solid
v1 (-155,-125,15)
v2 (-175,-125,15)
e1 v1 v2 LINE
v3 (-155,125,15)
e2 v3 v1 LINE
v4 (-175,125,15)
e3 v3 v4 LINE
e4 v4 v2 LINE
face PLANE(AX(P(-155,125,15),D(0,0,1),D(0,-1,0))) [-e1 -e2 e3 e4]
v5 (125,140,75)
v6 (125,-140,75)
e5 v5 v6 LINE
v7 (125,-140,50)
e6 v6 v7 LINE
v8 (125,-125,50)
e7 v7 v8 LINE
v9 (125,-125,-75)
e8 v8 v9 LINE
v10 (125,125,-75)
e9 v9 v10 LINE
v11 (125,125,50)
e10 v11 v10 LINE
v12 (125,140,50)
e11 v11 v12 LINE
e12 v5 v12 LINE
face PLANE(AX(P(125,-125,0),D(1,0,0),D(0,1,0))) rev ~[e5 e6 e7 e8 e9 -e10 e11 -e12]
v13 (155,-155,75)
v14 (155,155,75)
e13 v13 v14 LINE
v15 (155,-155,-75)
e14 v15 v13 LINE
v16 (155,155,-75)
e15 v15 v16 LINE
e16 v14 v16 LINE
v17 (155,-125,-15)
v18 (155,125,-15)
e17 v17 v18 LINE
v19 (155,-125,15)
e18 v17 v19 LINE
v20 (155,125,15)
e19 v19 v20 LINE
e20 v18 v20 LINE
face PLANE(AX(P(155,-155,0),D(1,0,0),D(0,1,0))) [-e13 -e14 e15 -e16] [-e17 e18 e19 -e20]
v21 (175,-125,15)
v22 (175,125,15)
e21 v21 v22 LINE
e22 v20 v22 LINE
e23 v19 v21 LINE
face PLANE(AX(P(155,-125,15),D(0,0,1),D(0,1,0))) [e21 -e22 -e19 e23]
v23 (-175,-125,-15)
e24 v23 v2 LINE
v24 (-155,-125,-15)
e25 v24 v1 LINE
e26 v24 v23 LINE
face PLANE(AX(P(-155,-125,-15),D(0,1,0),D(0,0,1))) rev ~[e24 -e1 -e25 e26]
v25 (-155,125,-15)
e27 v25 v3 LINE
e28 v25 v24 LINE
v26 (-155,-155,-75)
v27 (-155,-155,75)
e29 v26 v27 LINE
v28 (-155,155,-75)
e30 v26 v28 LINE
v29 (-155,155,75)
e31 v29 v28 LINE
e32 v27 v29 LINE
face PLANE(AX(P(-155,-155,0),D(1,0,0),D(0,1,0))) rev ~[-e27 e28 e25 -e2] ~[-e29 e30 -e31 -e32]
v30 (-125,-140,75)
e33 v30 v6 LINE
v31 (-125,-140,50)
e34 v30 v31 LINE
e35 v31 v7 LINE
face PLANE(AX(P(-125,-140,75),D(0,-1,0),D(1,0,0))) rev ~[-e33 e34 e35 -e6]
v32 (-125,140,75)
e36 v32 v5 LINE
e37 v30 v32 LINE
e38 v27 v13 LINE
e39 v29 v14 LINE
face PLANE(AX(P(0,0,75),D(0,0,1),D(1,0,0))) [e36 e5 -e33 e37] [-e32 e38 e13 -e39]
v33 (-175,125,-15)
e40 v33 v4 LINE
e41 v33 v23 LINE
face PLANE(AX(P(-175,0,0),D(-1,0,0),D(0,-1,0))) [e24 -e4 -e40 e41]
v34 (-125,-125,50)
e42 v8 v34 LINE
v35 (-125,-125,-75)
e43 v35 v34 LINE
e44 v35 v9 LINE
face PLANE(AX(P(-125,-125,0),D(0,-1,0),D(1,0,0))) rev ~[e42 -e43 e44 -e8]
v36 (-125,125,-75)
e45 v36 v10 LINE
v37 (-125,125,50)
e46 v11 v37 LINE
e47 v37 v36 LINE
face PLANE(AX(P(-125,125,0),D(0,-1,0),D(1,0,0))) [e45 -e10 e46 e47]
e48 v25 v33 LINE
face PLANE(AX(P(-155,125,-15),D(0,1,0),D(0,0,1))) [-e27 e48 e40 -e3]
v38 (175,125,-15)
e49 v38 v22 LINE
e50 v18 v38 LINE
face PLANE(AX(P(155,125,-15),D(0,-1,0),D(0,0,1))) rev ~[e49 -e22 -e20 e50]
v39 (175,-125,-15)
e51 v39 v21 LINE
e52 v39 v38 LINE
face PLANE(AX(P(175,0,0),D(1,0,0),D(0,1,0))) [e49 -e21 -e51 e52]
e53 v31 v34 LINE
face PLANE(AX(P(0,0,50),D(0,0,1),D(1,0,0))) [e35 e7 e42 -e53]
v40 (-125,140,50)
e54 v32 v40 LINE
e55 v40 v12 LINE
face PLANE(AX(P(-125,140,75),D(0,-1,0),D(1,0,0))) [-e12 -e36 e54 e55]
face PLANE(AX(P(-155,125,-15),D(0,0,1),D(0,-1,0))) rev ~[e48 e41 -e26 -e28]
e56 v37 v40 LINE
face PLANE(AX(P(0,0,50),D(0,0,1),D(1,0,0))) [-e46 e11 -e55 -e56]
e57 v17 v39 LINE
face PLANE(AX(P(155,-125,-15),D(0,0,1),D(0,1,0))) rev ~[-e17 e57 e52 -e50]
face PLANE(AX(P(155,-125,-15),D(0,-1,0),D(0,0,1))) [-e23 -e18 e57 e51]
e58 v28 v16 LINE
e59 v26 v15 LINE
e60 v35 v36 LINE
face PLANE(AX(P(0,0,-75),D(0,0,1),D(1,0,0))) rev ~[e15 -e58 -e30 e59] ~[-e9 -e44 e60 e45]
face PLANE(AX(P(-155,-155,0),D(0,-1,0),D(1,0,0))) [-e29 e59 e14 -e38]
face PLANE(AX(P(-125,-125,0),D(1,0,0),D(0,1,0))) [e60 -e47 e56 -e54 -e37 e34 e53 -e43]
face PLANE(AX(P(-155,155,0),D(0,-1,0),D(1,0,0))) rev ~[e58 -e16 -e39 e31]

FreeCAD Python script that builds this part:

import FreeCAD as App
import Part
import Sketcher

V = App.Vector

doc = App.newDocument("Part")
params = doc.addObject("Spreadsheet::Sheet", "Params")
for row, (alias, value) in enumerate([
    ("sketch1_width", "310 mm"),
    ("sketch1_width2", "250 mm"),
    ("pad1_length", "150 mm"),
    ("sketch2_width", "250 mm"),
    ("sketch2_height", "280 mm"),
    ("pocket1_length", "25 mm"),
    ("sketch3_width", "250 mm"),
    ("sketch3_height", "30 mm"),
    ("pad2_length", "20 mm"),
    ("sketch4_width", "250 mm"),
    ("sketch4_height", "30 mm"),
    ("pad3_length", "20 mm"),
], start=1):
    params.set(f"A{row}", alias)
    params.set(f"B{row}", "=" + value)
    params.setAlias(f"B{row}", alias)

body = doc.addObject("PartDesign::Body", "Body")

# Sketch on XY plane
sketch1 = body.newObject("Sketcher::SketchObject", "Sketch")
sketch1.AttachmentSupport = (doc.getObject("XY_Plane"), [""])
sketch1.MapMode = "FlatFace"
sketch1.addGeometry([
    Part.LineSegment(V(-155, 155, 0), V(-155, -155, 0)),  # 0
    Part.LineSegment(V(-155, -155, 0), V(155, -155, 0)),  # 1
    Part.LineSegment(V(155, -155, 0), V(155, 155, 0)),  # 2
    Part.LineSegment(V(155, 155, 0), V(-155, 155, 0)),  # 3
    Part.LineSegment(V(125, -125, 0), V(-125, -125, 0)),  # 4
    Part.LineSegment(V(-125, -125, 0), V(-125, 125, 0)),  # 5
    Part.LineSegment(V(-125, 125, 0), V(125, 125, 0)),  # 6
    Part.LineSegment(V(125, 125, 0), V(125, -125, 0)),  # 7
], False)
sketch1.addConstraint([
    Sketcher.Constraint("Coincident", 0, 2, 1, 1),
    Sketcher.Constraint("Coincident", 1, 2, 2, 1),
    Sketcher.Constraint("Coincident", 2, 2, 3, 1),
    Sketcher.Constraint("Coincident", 3, 2, 0, 1),
    Sketcher.Constraint("Coincident", 4, 2, 5, 1),
    Sketcher.Constraint("Coincident", 5, 2, 6, 1),
    Sketcher.Constraint("Coincident", 6, 2, 7, 1),
    Sketcher.Constraint("Coincident", 7, 2, 4, 1),
    Sketcher.Constraint("Vertical", 0),
    Sketcher.Constraint("Horizontal", 1),
    Sketcher.Constraint("Vertical", 2),
    Sketcher.Constraint("Horizontal", 3),
    Sketcher.Constraint("Horizontal", 4),
    Sketcher.Constraint("Vertical", 5),
    Sketcher.Constraint("Horizontal", 6),
    Sketcher.Constraint("Vertical", 7),
    Sketcher.Constraint("Symmetric", 0, 2, 2, 2, -1, 1),
    Sketcher.Constraint("Symmetric", 4, 2, 6, 2, -1, 1),
    Sketcher.Constraint("Equal", 3, 0),
    Sketcher.Constraint("Equal", 6, 5),
    Sketcher.Constraint("DistanceX", 1, 1, 1, 2, 310.0),
    Sketcher.Constraint("DistanceX", 4, 2, 4, 1, 250.0),
])
sketch1.setExpression("Constraints[20]", "Params.sketch1_width")
sketch1.setExpression("Constraints[21]", "Params.sketch1_width2")
pad1 = body.newObject("PartDesign::Pad", "Pad")
pad1.Profile = sketch1
pad1.setExpression("Length", "Params.pad1_length")
pad1.Midplane = True

# Sketch on XY plane
sketch2 = body.newObject("Sketcher::SketchObject", "Sketch001")
sketch2.AttachmentSupport = (doc.getObject("XY_Plane"), [""])
sketch2.MapMode = "FlatFace"
sketch2.AttachmentOffset = App.Placement(V(0, 0, 75), App.Rotation())
sketch2.addGeometry([
    Part.LineSegment(V(-125, 140, 0), V(-125, -140, 0)),
    Part.LineSegment(V(-125, -140, 0), V(125, -140, 0)),
    Part.LineSegment(V(125, -140, 0), V(125, 140, 0)),
    Part.LineSegment(V(125, 140, 0), V(-125, 140, 0)),
], False)
sketch2.addConstraint([
    Sketcher.Constraint("Coincident", 0, 2, 1, 1),
    Sketcher.Constraint("Coincident", 1, 2, 2, 1),
    Sketcher.Constraint("Coincident", 2, 2, 3, 1),
    Sketcher.Constraint("Coincident", 3, 2, 0, 1),
    Sketcher.Constraint("Vertical", 0),
    Sketcher.Constraint("Horizontal", 1),
    Sketcher.Constraint("Vertical", 2),
    Sketcher.Constraint("Horizontal", 3),
    Sketcher.Constraint("Symmetric", 0, 2, 2, 2, -1, 1),
    Sketcher.Constraint("DistanceX", 1, 1, 1, 2, 250.0),
    Sketcher.Constraint("DistanceY", 0, 2, 0, 1, 280.0),
])
sketch2.setExpression("Constraints[9]", "Params.sketch2_width")
sketch2.setExpression("Constraints[10]", "Params.sketch2_height")
pocket1 = body.newObject("PartDesign::Pocket", "Pocket")
pocket1.Profile = sketch2
pocket1.setExpression("Length", "Params.pocket1_length")

# Sketch on YZ plane
sketch3 = body.newObject("Sketcher::SketchObject", "Sketch002")
sketch3.AttachmentSupport = (doc.getObject("YZ_Plane"), [""])
sketch3.MapMode = "FlatFace"
sketch3.AttachmentOffset = App.Placement(V(0, 0, -155), App.Rotation())
sketch3.addGeometry([
    Part.LineSegment(V(125, 15, 0), V(125, -15, 0)),
    Part.LineSegment(V(125, -15, 0), V(-125, -15, 0)),
    Part.LineSegment(V(-125, -15, 0), V(-125, 15, 0)),
    Part.LineSegment(V(-125, 15, 0), V(125, 15, 0)),
], False)
sketch3.addConstraint([
    Sketcher.Constraint("Coincident", 0, 2, 1, 1),
    Sketcher.Constraint("Coincident", 1, 2, 2, 1),
    Sketcher.Constraint("Coincident", 2, 2, 3, 1),
    Sketcher.Constraint("Coincident", 3, 2, 0, 1),
    Sketcher.Constraint("Vertical", 0),
    Sketcher.Constraint("Horizontal", 1),
    Sketcher.Constraint("Vertical", 2),
    Sketcher.Constraint("Horizontal", 3),
    Sketcher.Constraint("Symmetric", 0, 2, 2, 2, -1, 1),
    Sketcher.Constraint("DistanceX", 1, 2, 1, 1, 250.0),
    Sketcher.Constraint("DistanceY", 0, 2, 0, 1, 30.0),
])
sketch3.setExpression("Constraints[9]", "Params.sketch3_width")
sketch3.setExpression("Constraints[10]", "Params.sketch3_height")
pad2 = body.newObject("PartDesign::Pad", "Pad001")
pad2.Profile = sketch3
pad2.setExpression("Length", "Params.pad2_length")
pad2.Reversed = True

# Sketch on YZ plane
sketch4 = body.newObject("Sketcher::SketchObject", "Sketch003")
sketch4.AttachmentSupport = (doc.getObject("YZ_Plane"), [""])
sketch4.MapMode = "FlatFace"
sketch4.AttachmentOffset = App.Placement(V(0, 0, 155), App.Rotation())
sketch4.addGeometry([
    Part.LineSegment(V(-125, 15, 0), V(-125, -15, 0)),
    Part.LineSegment(V(-125, -15, 0), V(125, -15, 0)),
    Part.LineSegment(V(125, -15, 0), V(125, 15, 0)),
    Part.LineSegment(V(125, 15, 0), V(-125, 15, 0)),
], False)
sketch4.addConstraint([
    Sketcher.Constraint("Coincident", 0, 2, 1, 1),
    Sketcher.Constraint("Coincident", 1, 2, 2, 1),
    Sketcher.Constraint("Coincident", 2, 2, 3, 1),
    Sketcher.Constraint("Coincident", 3, 2, 0, 1),
    Sketcher.Constraint("Vertical", 0),
    Sketcher.Constraint("Horizontal", 1),
    Sketcher.Constraint("Vertical", 2),
    Sketcher.Constraint("Horizontal", 3),
    Sketcher.Constraint("Symmetric", 0, 2, 2, 2, -1, 1),
    Sketcher.Constraint("DistanceX", 1, 1, 1, 2, 250.0),
    Sketcher.Constraint("DistanceY", 0, 2, 0, 1, 30.0),
])
sketch4.setExpression("Constraints[9]", "Params.sketch4_width")
sketch4.setExpression("Constraints[10]", "Params.sketch4_height")
pad3 = body.newObject("PartDesign::Pad", "Pad002")
pad3.Profile = sketch4
pad3.setExpression("Length", "Params.pad3_length")

doc.recompute()
